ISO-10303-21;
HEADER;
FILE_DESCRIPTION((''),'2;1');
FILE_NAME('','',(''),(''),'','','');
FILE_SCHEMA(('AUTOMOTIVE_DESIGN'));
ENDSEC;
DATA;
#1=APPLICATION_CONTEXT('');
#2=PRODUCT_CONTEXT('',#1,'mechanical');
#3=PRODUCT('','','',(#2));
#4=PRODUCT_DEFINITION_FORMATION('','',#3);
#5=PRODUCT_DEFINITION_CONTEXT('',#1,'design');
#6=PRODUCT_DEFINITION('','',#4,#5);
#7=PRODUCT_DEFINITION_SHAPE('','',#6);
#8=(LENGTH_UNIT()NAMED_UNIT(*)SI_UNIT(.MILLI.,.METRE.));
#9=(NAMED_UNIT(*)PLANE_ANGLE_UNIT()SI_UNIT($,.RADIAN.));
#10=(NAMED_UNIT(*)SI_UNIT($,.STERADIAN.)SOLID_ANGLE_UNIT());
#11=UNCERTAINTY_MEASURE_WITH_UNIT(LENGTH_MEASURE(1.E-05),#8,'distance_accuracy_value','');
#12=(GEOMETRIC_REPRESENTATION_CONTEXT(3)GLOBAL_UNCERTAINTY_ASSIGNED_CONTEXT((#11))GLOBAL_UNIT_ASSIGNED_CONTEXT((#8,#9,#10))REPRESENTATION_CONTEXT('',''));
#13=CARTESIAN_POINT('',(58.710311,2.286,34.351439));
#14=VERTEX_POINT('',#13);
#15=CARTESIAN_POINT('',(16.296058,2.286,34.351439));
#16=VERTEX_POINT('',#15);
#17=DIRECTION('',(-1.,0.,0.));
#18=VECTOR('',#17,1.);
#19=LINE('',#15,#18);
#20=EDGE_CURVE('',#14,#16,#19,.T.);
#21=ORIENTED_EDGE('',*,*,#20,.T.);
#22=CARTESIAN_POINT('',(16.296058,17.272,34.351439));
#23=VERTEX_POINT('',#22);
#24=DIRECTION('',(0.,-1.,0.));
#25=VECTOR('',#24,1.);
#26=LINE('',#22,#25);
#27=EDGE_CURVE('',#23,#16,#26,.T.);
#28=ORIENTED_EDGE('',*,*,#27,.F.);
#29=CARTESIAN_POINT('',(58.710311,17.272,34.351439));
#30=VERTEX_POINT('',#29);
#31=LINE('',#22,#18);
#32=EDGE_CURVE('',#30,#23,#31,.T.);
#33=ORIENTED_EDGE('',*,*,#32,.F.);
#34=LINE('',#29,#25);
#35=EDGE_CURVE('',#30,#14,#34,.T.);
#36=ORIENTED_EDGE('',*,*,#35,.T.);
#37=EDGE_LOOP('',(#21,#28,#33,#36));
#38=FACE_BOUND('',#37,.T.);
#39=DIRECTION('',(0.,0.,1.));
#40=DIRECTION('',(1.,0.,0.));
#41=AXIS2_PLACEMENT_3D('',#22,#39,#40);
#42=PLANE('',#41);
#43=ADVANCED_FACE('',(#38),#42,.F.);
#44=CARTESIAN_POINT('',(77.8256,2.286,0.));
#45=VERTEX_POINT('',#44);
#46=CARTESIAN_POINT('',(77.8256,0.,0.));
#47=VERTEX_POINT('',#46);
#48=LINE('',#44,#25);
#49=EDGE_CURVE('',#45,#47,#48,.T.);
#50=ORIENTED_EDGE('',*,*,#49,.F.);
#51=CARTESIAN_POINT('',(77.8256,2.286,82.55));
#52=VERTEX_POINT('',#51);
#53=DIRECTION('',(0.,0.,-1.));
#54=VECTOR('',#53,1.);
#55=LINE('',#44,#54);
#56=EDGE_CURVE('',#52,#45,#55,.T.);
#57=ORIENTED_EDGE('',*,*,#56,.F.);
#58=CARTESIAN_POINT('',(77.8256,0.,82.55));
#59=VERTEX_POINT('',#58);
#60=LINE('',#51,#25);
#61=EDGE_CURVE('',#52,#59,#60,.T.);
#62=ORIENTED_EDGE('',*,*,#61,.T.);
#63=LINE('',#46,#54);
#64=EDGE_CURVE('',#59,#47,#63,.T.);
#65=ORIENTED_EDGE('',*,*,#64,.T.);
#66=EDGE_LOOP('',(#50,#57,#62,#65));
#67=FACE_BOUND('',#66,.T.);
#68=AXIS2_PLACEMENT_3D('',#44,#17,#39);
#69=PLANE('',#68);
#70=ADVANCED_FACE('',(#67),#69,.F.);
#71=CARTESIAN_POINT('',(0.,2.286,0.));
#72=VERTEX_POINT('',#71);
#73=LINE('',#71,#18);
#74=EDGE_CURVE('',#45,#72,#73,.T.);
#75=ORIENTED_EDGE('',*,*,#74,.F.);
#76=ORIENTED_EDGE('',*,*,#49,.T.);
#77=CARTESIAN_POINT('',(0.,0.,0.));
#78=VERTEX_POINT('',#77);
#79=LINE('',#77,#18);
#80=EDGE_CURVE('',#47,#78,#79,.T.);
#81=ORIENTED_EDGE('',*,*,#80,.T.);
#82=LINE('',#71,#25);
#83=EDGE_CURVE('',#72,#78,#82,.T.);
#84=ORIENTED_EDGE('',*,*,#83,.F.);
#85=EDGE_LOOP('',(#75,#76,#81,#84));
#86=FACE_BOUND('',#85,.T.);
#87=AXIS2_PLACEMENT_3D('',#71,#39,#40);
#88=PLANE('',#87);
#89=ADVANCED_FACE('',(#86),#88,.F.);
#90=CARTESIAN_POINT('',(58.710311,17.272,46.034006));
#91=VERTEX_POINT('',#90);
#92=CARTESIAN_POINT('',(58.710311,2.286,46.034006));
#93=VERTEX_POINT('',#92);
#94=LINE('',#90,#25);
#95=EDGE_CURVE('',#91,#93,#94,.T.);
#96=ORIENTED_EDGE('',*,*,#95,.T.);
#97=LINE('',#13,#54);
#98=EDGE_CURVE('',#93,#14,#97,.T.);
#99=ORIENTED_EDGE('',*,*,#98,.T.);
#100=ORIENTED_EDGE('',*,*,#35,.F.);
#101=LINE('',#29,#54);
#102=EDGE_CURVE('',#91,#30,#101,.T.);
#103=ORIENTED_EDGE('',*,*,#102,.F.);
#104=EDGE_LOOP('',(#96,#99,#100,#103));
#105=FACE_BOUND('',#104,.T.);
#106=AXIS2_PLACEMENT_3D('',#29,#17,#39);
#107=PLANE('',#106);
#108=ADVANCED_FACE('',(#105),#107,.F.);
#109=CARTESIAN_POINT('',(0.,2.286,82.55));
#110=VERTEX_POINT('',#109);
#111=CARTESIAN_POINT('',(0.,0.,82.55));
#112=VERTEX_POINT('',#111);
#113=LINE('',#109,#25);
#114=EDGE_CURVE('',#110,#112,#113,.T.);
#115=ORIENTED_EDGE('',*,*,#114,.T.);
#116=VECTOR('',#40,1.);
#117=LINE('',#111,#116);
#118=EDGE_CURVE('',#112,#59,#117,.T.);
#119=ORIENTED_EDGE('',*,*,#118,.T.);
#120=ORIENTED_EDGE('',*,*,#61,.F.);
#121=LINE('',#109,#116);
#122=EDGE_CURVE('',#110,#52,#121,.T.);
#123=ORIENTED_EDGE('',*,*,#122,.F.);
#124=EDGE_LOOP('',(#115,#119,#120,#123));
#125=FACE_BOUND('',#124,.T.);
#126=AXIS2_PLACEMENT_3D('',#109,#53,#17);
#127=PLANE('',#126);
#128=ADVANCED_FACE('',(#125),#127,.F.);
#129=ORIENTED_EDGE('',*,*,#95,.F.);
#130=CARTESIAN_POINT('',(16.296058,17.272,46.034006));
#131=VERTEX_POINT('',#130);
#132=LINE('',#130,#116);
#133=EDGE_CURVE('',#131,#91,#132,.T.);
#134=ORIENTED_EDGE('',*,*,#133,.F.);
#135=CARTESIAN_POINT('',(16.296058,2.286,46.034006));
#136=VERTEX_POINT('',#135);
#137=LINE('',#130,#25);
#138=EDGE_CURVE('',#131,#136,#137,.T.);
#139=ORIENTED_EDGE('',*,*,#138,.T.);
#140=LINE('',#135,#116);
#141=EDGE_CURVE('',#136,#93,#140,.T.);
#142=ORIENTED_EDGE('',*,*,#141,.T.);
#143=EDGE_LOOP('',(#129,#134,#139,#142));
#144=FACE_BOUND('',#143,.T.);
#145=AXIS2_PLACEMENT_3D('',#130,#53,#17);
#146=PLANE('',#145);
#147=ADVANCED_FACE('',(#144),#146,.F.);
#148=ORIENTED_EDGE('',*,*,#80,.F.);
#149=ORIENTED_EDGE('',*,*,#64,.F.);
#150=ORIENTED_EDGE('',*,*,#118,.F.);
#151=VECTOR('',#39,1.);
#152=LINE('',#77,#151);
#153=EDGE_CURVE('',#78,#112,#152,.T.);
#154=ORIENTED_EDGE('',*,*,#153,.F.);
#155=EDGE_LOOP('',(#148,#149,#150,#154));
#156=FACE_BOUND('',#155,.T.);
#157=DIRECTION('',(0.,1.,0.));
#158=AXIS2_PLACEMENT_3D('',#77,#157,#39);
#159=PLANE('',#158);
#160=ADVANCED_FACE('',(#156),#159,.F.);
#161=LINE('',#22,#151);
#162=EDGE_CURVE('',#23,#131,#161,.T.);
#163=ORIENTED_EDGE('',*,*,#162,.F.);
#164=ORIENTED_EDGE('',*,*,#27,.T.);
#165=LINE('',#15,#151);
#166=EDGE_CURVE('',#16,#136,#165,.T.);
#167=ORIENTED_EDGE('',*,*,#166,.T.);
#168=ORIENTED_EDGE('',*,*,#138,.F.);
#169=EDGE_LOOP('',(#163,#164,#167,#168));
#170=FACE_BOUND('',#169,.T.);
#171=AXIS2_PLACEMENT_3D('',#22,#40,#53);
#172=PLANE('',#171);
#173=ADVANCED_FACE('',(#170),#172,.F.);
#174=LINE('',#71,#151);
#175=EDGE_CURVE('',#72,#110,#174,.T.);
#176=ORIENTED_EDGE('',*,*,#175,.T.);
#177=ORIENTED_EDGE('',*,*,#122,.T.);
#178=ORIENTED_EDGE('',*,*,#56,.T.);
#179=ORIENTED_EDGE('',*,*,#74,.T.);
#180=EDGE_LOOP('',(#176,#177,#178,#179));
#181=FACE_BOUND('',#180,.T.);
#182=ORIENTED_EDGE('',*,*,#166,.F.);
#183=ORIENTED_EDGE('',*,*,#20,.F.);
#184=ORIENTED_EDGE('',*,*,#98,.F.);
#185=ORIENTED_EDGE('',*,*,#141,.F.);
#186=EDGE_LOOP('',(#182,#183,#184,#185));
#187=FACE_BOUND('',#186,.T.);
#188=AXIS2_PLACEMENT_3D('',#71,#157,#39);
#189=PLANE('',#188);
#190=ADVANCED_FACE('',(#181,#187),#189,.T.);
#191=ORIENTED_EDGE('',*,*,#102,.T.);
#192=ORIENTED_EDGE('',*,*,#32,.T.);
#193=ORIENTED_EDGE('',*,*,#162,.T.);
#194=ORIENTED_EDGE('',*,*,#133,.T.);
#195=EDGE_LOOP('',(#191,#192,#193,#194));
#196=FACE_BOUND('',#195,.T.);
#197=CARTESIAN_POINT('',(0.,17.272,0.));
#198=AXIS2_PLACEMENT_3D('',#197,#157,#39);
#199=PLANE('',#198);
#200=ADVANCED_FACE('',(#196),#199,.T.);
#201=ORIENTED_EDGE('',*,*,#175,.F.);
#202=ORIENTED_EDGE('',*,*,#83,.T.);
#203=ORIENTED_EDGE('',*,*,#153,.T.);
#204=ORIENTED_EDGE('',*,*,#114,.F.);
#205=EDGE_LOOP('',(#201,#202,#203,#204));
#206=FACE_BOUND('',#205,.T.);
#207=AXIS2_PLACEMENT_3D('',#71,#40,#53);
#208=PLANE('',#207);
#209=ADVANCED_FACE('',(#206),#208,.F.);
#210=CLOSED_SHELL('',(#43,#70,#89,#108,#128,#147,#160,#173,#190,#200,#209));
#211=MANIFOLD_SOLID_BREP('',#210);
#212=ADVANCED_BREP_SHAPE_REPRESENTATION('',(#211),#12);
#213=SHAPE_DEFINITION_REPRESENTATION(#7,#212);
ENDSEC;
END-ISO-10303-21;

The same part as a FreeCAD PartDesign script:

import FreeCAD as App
import Part
import Sketcher
Q = App.Units.Quantity


def add_polygon(sketch, points):
    """Adds a closed chain of lines whose ends are joined by coincident constraints."""
    first, n = sketch.GeometryCount, len(points)
    for a, b in zip(points, points[1:] + points[:1]):
        sketch.addGeometry(Part.LineSegment(App.Vector(*a, 0), App.Vector(*b, 0)), False)
    for i in range(n):
        sketch.addConstraint(Sketcher.Constraint("Coincident", first + i, 2, first + (i + 1) % n, 1))

doc = App.newDocument("Part")
params = doc.addObject("Spreadsheet::Sheet", "Params")
for row, (alias, value) in enumerate([
    ("sketch1_height", "3.25 in"),
    ("sketch1_width", "3.064 in"),
    ("pad1_length", "0.09 in"),
    ("pad2_length", "0.59 in"),
], start=1):
    params.set(f"A{row}", alias)
    params.set(f"B{row}", "=" + value)
    params.setAlias(f"B{row}", alias)

body = doc.addObject("PartDesign::Body", "Body")

sketch1 = body.newObject("Sketcher::SketchObject", "Sketch")
sketch1.AttachmentSupport = (doc.getObject("XZ_Plane"), [""])
sketch1.MapMode = "FlatFace"
add_polygon(sketch1, [(0, 0), (0, 83), (78, 83), (78, 0)])
sketch1.addConstraint([
    Sketcher.Constraint("Vertical", 0),
    Sketcher.Constraint("Horizontal", 1),
    Sketcher.Constraint("Vertical", 2),
    Sketcher.Constraint("Horizontal", 3),
    Sketcher.Constraint("Coincident", 3, 2, -1, 1),
    Sketcher.Constraint("DistanceY", 0, 1, 0, 2, Q("3.25 in")),
    Sketcher.Constraint("DistanceX", 1, 1, 1, 2, Q("3.064 in")),
])
sketch1.setExpression("Constraints[9]", "Params.sketch1_height")
sketch1.setExpression("Constraints[10]", "Params.sketch1_width")
pad1 = body.newObject("PartDesign::Pad", "Pad")
pad1.Profile = sketch1
pad1.setExpression("Length", "Params.pad1_length")
pad1.Reversed = True

sketch2 = body.newObject("Sketcher::SketchObject", "Sketch001")
sketch2.AttachmentSupport = (doc.getObject("XZ_Plane"), [""])
sketch2.MapMode = "FlatFace"
sketch2.AttachmentOffset = App.Placement(App.Vector(0, 0, -0.09 * 25.4), App.Rotation())
add_polygon(sketch2, [(16, 34), (16, 46), (59, 46), (59, 34)])
sketch2.addConstraint([
    Sketcher.Constraint("Vertical", 0),
    Sketcher.Constraint("Horizontal", 1),
    Sketcher.Constraint("Vertical", 2),
    Sketcher.Constraint("Horizontal", 3),
    Sketcher.Constraint("DistanceX", 1, 1, 1, 2, 42.414253),
    Sketcher.Constraint("DistanceY", 0, 1, 0, 2, 11.682568),
    Sketcher.Constraint("DistanceX", -1, 1, 0, 2, 16.296058),
    Sketcher.Constraint("DistanceY", -1, 1, 2, 2, 34.351439),
])
pad2 = body.newObject("PartDesign::Pad", "Pad001")
pad2.Profile = sketch2
pad2.setExpression("Length", "Params.pad2_length")
pad2.Reversed = True

doc.recompute()
